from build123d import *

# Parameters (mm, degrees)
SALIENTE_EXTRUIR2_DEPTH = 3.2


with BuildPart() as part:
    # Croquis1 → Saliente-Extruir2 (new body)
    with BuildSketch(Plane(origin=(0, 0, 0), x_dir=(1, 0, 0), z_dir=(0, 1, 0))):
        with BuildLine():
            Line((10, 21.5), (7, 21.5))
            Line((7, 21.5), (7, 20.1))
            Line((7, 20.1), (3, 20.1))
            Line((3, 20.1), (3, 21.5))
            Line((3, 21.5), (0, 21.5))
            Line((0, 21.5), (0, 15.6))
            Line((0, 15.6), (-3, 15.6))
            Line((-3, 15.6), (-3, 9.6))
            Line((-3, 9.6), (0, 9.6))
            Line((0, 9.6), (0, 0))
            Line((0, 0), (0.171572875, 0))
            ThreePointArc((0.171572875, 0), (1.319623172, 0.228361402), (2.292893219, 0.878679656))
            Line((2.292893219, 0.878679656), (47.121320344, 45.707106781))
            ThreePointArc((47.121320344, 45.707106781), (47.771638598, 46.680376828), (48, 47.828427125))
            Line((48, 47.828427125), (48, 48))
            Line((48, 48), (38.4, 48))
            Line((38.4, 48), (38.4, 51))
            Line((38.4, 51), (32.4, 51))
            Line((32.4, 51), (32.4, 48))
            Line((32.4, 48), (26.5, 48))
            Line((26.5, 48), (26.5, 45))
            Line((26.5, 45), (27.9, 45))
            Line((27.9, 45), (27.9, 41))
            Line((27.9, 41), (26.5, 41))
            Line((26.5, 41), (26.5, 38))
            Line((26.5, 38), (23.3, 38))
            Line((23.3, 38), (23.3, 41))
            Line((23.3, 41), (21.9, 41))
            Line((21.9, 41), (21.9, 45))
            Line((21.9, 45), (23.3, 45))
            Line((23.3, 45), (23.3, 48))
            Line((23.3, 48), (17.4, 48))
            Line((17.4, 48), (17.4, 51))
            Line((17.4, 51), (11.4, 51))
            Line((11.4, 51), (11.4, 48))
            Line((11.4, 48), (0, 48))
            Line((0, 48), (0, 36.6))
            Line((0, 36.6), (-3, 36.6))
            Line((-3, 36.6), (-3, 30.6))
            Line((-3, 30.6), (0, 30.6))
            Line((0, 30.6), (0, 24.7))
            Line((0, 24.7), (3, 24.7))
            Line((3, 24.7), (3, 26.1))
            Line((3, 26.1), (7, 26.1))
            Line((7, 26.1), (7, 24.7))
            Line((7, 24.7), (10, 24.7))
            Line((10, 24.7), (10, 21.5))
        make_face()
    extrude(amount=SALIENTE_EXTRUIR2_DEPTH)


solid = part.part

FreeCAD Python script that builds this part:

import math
import FreeCAD as App
import Part
import Sketcher

V = App.Vector
Q = App.Units.Quantity

doc = App.newDocument("Part")
body = doc.addObject("PartDesign::Body", "Body")

# Sketch on XZ plane
sketch1 = body.newObject("Sketcher::SketchObject", "Sketch")
sketch1.AttachmentSupport = (doc.getObject("XZ_Plane"), [""])
sketch1.MapMode = "FlatFace"
sketch1.addGeometry([
    Part.LineSegment(V(10, -21.5, 0), V(7, -21.5, 0)),  # 0
    Part.LineSegment(V(7, -21.5, 0), V(7, -20.1, 0)),  # 1
    Part.LineSegment(V(7, -20.1, 0), V(3, -20.1, 0)),  # 2
    Part.LineSegment(V(3, -20.1, 0), V(3, -21.5, 0)),  # 3
    Part.LineSegment(V(3, -21.5, 0), V(0, -21.5, 0)),  # 4
    Part.LineSegment(V(0, -21.5, 0), V(0, -15.6, 0)),  # 5
    Part.LineSegment(V(0, -15.6, 0), V(-3, -15.6, 0)),  # 6
    Part.LineSegment(V(-3, -15.6, 0), V(-3, -9.6, 0)),  # 7
    Part.LineSegment(V(-3, -9.6, 0), V(0, -9.6, 0)),  # 8
    Part.LineSegment(V(0, -9.6, 0), V(0, 0, 0)),  # 9
    Part.LineSegment(V(0, 0, 0), V(0.17, 0, 0)),  # 10
    Part.ArcOfCircle(Part.Circle(V(0.17, -3, 0), V(0, 0, 1), 3), math.radians(45), math.radians(90)),  # 11
    Part.LineSegment(V(2.29, -0.88, 0), V(47.12, -45.71, 0)),  # 12
    Part.ArcOfCircle(Part.Circle(V(45, -47.83, 0), V(0, 0, 1), 3), math.radians(0), math.radians(45)),  # 13
    Part.LineSegment(V(48, -47.83, 0), V(48, -48, 0)),  # 14
    Part.LineSegment(V(48, -48, 0), V(38.4, -48, 0)),  # 15
    Part.LineSegment(V(38.4, -48, 0), V(38.4, -51, 0)),  # 16
    Part.LineSegment(V(38.4, -51, 0), V(32.4, -51, 0)),  # 17
    Part.LineSegment(V(32.4, -51, 0), V(32.4, -48, 0)),  # 18
    Part.LineSegment(V(32.4, -48, 0), V(26.5, -48, 0)),  # 19
    Part.LineSegment(V(26.5, -48, 0), V(26.5, -45, 0)),  # 20
    Part.LineSegment(V(26.5, -45, 0), V(27.9, -45, 0)),  # 21
    Part.LineSegment(V(27.9, -45, 0), V(27.9, -41, 0)),  # 22
    Part.LineSegment(V(27.9, -41, 0), V(26.5, -41, 0)),  # 23
    Part.LineSegment(V(26.5, -41, 0), V(26.5, -38, 0)),  # 24
    Part.LineSegment(V(26.5, -38, 0), V(23.3, -38, 0)),  # 25
    Part.LineSegment(V(23.3, -38, 0), V(23.3, -41, 0)),  # 26
    Part.LineSegment(V(23.3, -41, 0), V(21.9, -41, 0)),  # 27
    Part.LineSegment(V(21.9, -41, 0), V(21.9, -45, 0)),  # 28
    Part.LineSegment(V(21.9, -45, 0), V(23.3, -45, 0)),  # 29
    Part.LineSegment(V(23.3, -45, 0), V(23.3, -48, 0)),  # 30
    Part.LineSegment(V(23.3, -48, 0), V(17.4, -48, 0)),  # 31
    Part.LineSegment(V(17.4, -48, 0), V(17.4, -51, 0)),  # 32
    Part.LineSegment(V(17.4, -51, 0), V(11.4, -51, 0)),  # 33
    Part.LineSegment(V(11.4, -51, 0), V(11.4, -48, 0)),  # 34
    Part.LineSegment(V(11.4, -48, 0), V(0, -48, 0)),  # 35
    Part.LineSegment(V(0, -48, 0), V(0, -36.6, 0)),  # 36
    Part.LineSegment(V(0, -36.6, 0), V(-3, -36.6, 0)),  # 37
    Part.LineSegment(V(-3, -36.6, 0), V(-3, -30.6, 0)),  # 38
    Part.LineSegment(V(-3, -30.6, 0), V(0, -30.6, 0)),  # 39
    Part.LineSegment(V(0, -30.6, 0), V(0, -24.7, 0)),  # 40
    Part.LineSegment(V(0, -24.7, 0), V(3, -24.7, 0)),  # 41
    Part.LineSegment(V(3, -24.7, 0), V(3, -26.1, 0)),  # 42
    Part.LineSegment(V(3, -26.1, 0), V(7, -26.1, 0)),  # 43
    Part.LineSegment(V(7, -26.1, 0), V(7, -24.7, 0)),  # 44
    Part.LineSegment(V(7, -24.7, 0), V(10, -24.7, 0)),  # 45
    Part.LineSegment(V(10, -24.7, 0), V(10, -21.5, 0)),  # 46
], False)
sketch1.addConstraint([
    Sketcher.Constraint("Coincident", 0, 2, 1, 1),
    Sketcher.Constraint("Coincident", 1, 2, 2, 1),
    Sketcher.Constraint("Coincident", 2, 2, 3, 1),
    Sketcher.Constraint("Coincident", 3, 2, 4, 1),
    Sketcher.Constraint("Coincident", 4, 2, 5, 1),
    Sketcher.Constraint("Coincident", 5, 2, 6, 1),
    Sketcher.Constraint("Coincident", 6, 2, 7, 1),
    Sketcher.Constraint("Coincident", 7, 2, 8, 1),
    Sketcher.Constraint("Coincident", 8, 2, 9, 1),
    Sketcher.Constraint("Coincident", 9, 2, 10, 1),
    Sketcher.Constraint("Tangent", 10, 2, 11, 2),
    Sketcher.Constraint("Tangent", 11, 1, 12, 1),
    Sketcher.Constraint("Tangent", 12, 2, 13, 2),
    Sketcher.Constraint("Tangent", 13, 1, 14, 1),
    Sketcher.Constraint("Coincident", 14, 2, 15, 1),
    Sketcher.Constraint("Coincident", 15, 2, 16, 1),
    Sketcher.Constraint("Coincident", 16, 2, 17, 1),
    Sketcher.Constraint("Coincident", 17, 2, 18, 1),
    Sketcher.Constraint("Coincident", 18, 2, 19, 1),
    Sketcher.Constraint("Coincident", 19, 2, 20, 1),
    Sketcher.Constraint("Coincident", 20, 2, 21, 1),
    Sketcher.Constraint("Coincident", 21, 2, 22, 1),
    Sketcher.Constraint("Coincident", 22, 2, 23, 1),
    Sketcher.Constraint("Coincident", 23, 2, 24, 1),
    Sketcher.Constraint("Coincident", 24, 2, 25, 1),
    Sketcher.Constraint("Coincident", 25, 2, 26, 1),
    Sketcher.Constraint("Coincident", 26, 2, 27, 1),
    Sketcher.Constraint("Coincident", 27, 2, 28, 1),
    Sketcher.Constraint("Coincident", 28, 2, 29, 1),
    Sketcher.Constraint("Coincident", 29, 2, 30, 1),
    Sketcher.Constraint("Coincident", 30, 2, 31, 1),
    Sketcher.Constraint("Coincident", 31, 2, 32, 1),
    Sketcher.Constraint("Coincident", 32, 2, 33, 1),
    Sketcher.Constraint("Coincident", 33, 2, 34, 1),
    Sketcher.Constraint("Coincident", 34, 2, 35, 1),
    Sketcher.Constraint("Coincident", 35, 2, 36, 1),
    Sketcher.Constraint("Coincident", 36, 2, 37, 1),
    Sketcher.Constraint("Coincident", 37, 2, 38, 1),
    Sketcher.Constraint("Coincident", 38, 2, 39, 1),
    Sketcher.Constraint("Coincident", 39, 2, 40, 1),
    Sketcher.Constraint("Coincident", 40, 2, 41, 1),
    Sketcher.Constraint("Coincident", 41, 2, 42, 1),
    Sketcher.Constraint("Coincident", 42, 2, 43, 1),
    Sketcher.Constraint("Coincident", 43, 2, 44, 1),
    Sketcher.Constraint("Coincident", 44, 2, 45, 1),
    Sketcher.Constraint("Coincident", 45, 2, 46, 1),
    Sketcher.Constraint("Coincident", 46, 2, 0, 1),
    Sketcher.Constraint("Horizontal", 0),
    Sketcher.Constraint("Vertical", 1),
    Sketcher.Constraint("Horizontal", 2),
    Sketcher.Constraint("Vertical", 3),
    Sketcher.Constraint("Horizontal", 4),
    Sketcher.Constraint("Vertical", 5),
    Sketcher.Constraint("Horizontal", 6),
    Sketcher.Constraint("Vertical", 7),
    Sketcher.Constraint("Horizontal", 8),
    Sketcher.Constraint("Vertical", 9),
    Sketcher.Constraint("Horizontal", 10),
    Sketcher.Constraint("Vertical", 14),
    Sketcher.Constraint("Horizontal", 15),
    Sketcher.Constraint("Vertical", 16),
    Sketcher.Constraint("Horizontal", 17),
    Sketcher.Constraint("Vertical", 18),
    Sketcher.Constraint("Horizontal", 19),
    Sketcher.Constraint("Vertical", 20),
    Sketcher.Constraint("Horizontal", 21),
    Sketcher.Constraint("Vertical", 22),
    Sketcher.Constraint("Horizontal", 23),
    Sketcher.Constraint("Vertical", 24),
    Sketcher.Constraint("Horizontal", 25),
    Sketcher.Constraint("Vertical", 26),
    Sketcher.Constraint("Horizontal", 27),
    Sketcher.Constraint("Vertical", 28),
    Sketcher.Constraint("Horizontal", 29),
    Sketcher.Constraint("Vertical", 30),
    Sketcher.Constraint("Horizontal", 31),
    Sketcher.Constraint("Vertical", 32),
    Sketcher.Constraint("Horizontal", 33),
    Sketcher.Constraint("Vertical", 34),
    Sketcher.Constraint("Horizontal", 35),
    Sketcher.Constraint("Vertical", 36),
    Sketcher.Constraint("Horizontal", 37),
    Sketcher.Constraint("Vertical", 38),
    Sketcher.Constraint("Horizontal", 39),
    Sketcher.Constraint("Vertical", 40),
    Sketcher.Constraint("Horizontal", 41),
    Sketcher.Constraint("Vertical", 42),
    Sketcher.Constraint("Horizontal", 43),
    Sketcher.Constraint("Vertical", 44),
    Sketcher.Constraint("Horizontal", 45),
    Sketcher.Constraint("Vertical", 46),
    Sketcher.Constraint("Coincident", 9, 2, -1, 1),
    Sketcher.Constraint("Equal", 11, 13),
    Sketcher.Constraint("PointOnObject", 4, 2, -2),
    Sketcher.Constraint("PointOnObject", 35, 2, -2),
    Sketcher.Constraint("PointOnObject", 39, 2, -2),
    Sketcher.Constraint("Horizontal", 0, 2, 3, 2),
    Sketcher.Constraint("Horizontal", 15, 2, 18, 2),
    Sketcher.Constraint("Horizontal", 23, 2, 26, 2),
    Sketcher.Constraint("Horizontal", 21, 2, 28, 2),
    Sketcher.Constraint("Horizontal", 19, 2, 30, 2),
    Sketcher.Constraint("Horizontal", 17, 2, 32, 2),
    Sketcher.Constraint("Horizontal", 31, 2, 34, 2),
    Sketcher.Constraint("Horizontal", 41, 2, 44, 2),
    Sketcher.Constraint("Vertical", 20, 2, 23, 2),
    Sketcher.Constraint("Vertical", 26, 2, 29, 2),
    Sketcher.Constraint("Vertical", 7, 2, 37, 2),
    Sketcher.Constraint("Vertical", 3, 2, 41, 2),
    Sketcher.Constraint("Vertical", 1, 2, 43, 2),
    Sketcher.Constraint("Equal", 0, 4),
    Sketcher.Constraint("Equal", 4, 6),
    Sketcher.Constraint("Equal", 23, 27),
    Sketcher.Constraint("Equal", 19, 31),
    Sketcher.Constraint("Equal", 17, 33),
    Sketcher.Constraint("Equal", 29, 1),
    Sketcher.Constraint("Equal", 31, 5),
    Sketcher.Constraint("Equal", 33, 7),
    Sketcher.Constraint("Equal", 15, 9),
    Sketcher.Constraint("Equal", 10, 14),
    Sketcher.Constraint("Equal", 45, 16),
    Sketcher.Constraint("Equal", 18, 20),
    Sketcher.Constraint("Equal", 43, 22),
    Sketcher.Constraint("Equal", 20, 24),
    Sketcher.Constraint("Equal", 35, 36),
    Sketcher.Constraint("Equal", 7, 38),
    Sketcher.Constraint("Equal", 5, 40),
    Sketcher.Constraint("Equal", 3, 42),
    Sketcher.Constraint("Equal", 25, 46),
    Sketcher.Constraint("Radius", 11, Q("3 mm")),
    Sketcher.Constraint("DistanceX", 0, 2, 0, 1, Q("3 mm")),
    Sketcher.Constraint("DistanceX", 2, 2, 2, 1, Q("4 mm")),
    Sketcher.Constraint("DistanceX", 17, 2, 17, 1, Q("6 mm")),
    Sketcher.Constraint("DistanceX", 15, 2, 15, 1, Q("9.6 mm")),
    Sketcher.Constraint("DistanceX", 19, 2, 19, 1, Q("5.9 mm")),
    Sketcher.Constraint("DistanceX", 21, 1, 21, 2, Q("1.4 mm")),
    Sketcher.Constraint("DistanceX", 25, 2, 25, 1, Q("3.2 mm")),
    Sketcher.Constraint("DistanceX", 35, 2, 35, 1, Q("11.4 mm")),
    Sketcher.Constraint("Distance", 12, Q("63.39697 mm")),
])
pad1 = body.newObject("PartDesign::Pad", "Pad")
pad1.Profile = sketch1
pad1.Length = 3.2
pad1.Reversed = True

doc.recompute()
